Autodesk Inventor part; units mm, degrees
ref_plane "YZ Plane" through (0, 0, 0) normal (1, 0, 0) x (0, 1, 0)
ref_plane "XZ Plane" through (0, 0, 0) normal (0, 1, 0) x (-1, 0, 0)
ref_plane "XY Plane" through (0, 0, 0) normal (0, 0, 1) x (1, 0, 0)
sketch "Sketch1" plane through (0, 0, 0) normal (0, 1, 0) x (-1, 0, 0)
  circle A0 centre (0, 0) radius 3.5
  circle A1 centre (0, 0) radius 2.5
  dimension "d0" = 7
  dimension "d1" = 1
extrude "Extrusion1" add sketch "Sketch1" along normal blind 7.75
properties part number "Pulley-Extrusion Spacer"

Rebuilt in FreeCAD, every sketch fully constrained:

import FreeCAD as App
import Part
import Sketcher
from FreeCAD import Vector
Q = App.Units.Quantity

doc = App.newDocument("Part")
body = doc.addObject("PartDesign::Body", "Body")

# Sketch on XZ plane
sketch1 = body.newObject("Sketcher::SketchObject", "Sketch")
sketch1.AttachmentSupport = (doc.getObject("XZ_Plane"), [""])
sketch1.MapMode = "FlatFace"
sketch1.addGeometry(Part.Circle(Vector(0, 0, 0), Vector(0, 0, 1), 3.5), False)
sketch1.addGeometry(Part.Circle(Vector(0, 0, 0), Vector(0, 0, 1), 2.5), False)
sketch1.addConstraint(Sketcher.Constraint("Coincident", 0, 3, -1, 1))
sketch1.addConstraint(Sketcher.Constraint("Coincident", 1, 3, -1, 1))
sketch1.addConstraint(Sketcher.Constraint("Diameter", 0, Q("7 mm")))
sketch1.addConstraint(Sketcher.Constraint("Diameter", 1, Q("5 mm")))
pad1 = body.newObject("PartDesign::Pad", "Pad")
pad1.Profile = sketch1
pad1.Length = 7.75
pad1.Reversed = True

doc.recompute()
